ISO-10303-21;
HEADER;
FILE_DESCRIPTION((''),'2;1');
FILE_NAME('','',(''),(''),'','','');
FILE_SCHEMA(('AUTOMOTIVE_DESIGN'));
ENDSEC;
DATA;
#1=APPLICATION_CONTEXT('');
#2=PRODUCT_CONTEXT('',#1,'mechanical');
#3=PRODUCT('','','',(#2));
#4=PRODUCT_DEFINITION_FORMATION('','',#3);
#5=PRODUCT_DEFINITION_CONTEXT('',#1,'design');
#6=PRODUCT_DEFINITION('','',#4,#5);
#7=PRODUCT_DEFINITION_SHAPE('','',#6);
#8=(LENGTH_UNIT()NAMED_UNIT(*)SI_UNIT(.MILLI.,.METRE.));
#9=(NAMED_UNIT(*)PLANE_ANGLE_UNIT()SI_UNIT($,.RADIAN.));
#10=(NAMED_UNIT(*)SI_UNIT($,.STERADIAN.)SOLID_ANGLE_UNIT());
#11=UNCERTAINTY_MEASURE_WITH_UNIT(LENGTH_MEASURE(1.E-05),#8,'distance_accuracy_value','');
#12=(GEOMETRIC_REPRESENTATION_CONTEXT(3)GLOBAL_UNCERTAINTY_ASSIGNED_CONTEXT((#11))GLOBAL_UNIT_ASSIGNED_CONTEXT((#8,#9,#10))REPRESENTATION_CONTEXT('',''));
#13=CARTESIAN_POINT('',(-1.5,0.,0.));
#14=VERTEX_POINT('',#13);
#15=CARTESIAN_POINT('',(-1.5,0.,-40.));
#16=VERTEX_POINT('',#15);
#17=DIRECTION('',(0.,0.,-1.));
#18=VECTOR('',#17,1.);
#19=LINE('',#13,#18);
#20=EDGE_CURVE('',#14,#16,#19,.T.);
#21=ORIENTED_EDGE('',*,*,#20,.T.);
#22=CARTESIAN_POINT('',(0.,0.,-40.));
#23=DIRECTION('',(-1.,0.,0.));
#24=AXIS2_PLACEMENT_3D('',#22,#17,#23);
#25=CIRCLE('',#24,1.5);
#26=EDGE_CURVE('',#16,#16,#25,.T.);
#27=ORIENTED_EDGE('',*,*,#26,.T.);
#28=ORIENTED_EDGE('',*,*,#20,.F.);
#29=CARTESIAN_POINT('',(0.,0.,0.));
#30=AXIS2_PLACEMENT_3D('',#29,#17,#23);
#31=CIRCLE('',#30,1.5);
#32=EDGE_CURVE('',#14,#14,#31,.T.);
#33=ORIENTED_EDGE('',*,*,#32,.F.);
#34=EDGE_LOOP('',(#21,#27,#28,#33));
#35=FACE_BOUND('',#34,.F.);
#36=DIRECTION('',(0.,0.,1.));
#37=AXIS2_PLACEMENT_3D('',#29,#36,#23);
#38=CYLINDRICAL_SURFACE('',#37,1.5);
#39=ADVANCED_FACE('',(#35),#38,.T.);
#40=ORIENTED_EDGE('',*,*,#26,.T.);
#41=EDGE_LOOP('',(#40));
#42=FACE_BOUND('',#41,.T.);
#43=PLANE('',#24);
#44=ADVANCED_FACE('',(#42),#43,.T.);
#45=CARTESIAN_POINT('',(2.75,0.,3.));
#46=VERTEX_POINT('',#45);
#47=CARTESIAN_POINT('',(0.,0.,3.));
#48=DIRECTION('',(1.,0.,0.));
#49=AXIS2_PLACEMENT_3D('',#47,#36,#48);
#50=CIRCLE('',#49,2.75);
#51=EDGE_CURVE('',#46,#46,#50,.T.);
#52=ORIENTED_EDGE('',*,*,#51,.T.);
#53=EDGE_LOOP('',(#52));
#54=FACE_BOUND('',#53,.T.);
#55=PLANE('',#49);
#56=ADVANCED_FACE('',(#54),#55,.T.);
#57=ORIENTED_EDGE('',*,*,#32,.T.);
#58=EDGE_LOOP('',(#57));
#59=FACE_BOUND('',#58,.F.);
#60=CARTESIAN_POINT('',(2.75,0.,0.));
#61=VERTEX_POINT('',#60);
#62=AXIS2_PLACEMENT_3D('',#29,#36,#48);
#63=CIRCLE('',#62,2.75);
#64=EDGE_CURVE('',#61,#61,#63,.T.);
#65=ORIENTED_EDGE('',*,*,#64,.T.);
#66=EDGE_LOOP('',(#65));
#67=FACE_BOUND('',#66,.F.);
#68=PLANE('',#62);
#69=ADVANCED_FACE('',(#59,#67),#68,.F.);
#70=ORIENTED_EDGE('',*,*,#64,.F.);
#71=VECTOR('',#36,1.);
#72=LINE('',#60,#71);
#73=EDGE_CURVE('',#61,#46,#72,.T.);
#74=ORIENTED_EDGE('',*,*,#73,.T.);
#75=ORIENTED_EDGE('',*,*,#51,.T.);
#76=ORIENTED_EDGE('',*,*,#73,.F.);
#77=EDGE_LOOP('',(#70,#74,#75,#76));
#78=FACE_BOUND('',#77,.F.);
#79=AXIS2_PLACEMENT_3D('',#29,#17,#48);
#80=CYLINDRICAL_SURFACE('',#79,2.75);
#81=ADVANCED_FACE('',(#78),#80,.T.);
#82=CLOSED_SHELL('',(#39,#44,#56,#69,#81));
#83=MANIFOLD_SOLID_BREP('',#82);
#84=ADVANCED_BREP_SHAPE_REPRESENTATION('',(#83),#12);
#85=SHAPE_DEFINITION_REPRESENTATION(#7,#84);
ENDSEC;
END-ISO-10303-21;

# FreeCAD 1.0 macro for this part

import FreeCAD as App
import Part
import Sketcher

V = App.Vector
Q = App.Units.Quantity

doc = App.newDocument("Part")
params = doc.addObject("Spreadsheet::Sheet", "Params")
for row, (alias, value) in enumerate([
    ("sketch1_diameter", "5.5 mm"),
    ("pad1_length", "3 mm"),
    ("sketch2_diameter", "3 mm"),
    ("pad2_length", "40 mm"),
], start=1):
    params.set(f"A{row}", alias)
    params.set(f"B{row}", "=" + value)
    params.setAlias(f"B{row}", alias)

body = doc.addObject("PartDesign::Body", "Body")

# Sketch on XY plane
sketch1 = body.newObject("Sketcher::SketchObject", "Sketch")
sketch1.AttachmentSupport = (doc.getObject("XY_Plane"), [""])
sketch1.MapMode = "FlatFace"
sketch1.addGeometry(Part.Circle(V(0, 0, 0), V(0, 0, 1), 2.75), False)
sketch1.addConstraint([
    Sketcher.Constraint("Coincident", 0, 3, -1, 1),
    Sketcher.Constraint("Diameter", 0, Q("5.5 mm")),
])
sketch1.setExpression("Constraints[1]", "Params.sketch1_diameter")
pad1 = body.newObject("PartDesign::Pad", "Pad")
pad1.Profile = sketch1
pad1.setExpression("Length", "Params.pad1_length")

# Sketch on XY plane
sketch2 = body.newObject("Sketcher::SketchObject", "Sketch001")
sketch2.AttachmentSupport = (doc.getObject("XY_Plane"), [""])
sketch2.MapMode = "FlatFace"
sketch2.addGeometry(Part.Circle(V(0, 0, 0), V(0, 0, 1), 1.5), False)
sketch2.addConstraint([
    Sketcher.Constraint("Coincident", 0, 3, -1, 1),
    Sketcher.Constraint("Diameter", 0, Q("3 mm")),
])
sketch2.setExpression("Constraints[1]", "Params.sketch2_diameter")
pad2 = body.newObject("PartDesign::Pad", "Pad001")
pad2.Profile = sketch2
pad2.setExpression("Length", "Params.pad2_length")
pad2.Reversed = True

doc.recompute()
